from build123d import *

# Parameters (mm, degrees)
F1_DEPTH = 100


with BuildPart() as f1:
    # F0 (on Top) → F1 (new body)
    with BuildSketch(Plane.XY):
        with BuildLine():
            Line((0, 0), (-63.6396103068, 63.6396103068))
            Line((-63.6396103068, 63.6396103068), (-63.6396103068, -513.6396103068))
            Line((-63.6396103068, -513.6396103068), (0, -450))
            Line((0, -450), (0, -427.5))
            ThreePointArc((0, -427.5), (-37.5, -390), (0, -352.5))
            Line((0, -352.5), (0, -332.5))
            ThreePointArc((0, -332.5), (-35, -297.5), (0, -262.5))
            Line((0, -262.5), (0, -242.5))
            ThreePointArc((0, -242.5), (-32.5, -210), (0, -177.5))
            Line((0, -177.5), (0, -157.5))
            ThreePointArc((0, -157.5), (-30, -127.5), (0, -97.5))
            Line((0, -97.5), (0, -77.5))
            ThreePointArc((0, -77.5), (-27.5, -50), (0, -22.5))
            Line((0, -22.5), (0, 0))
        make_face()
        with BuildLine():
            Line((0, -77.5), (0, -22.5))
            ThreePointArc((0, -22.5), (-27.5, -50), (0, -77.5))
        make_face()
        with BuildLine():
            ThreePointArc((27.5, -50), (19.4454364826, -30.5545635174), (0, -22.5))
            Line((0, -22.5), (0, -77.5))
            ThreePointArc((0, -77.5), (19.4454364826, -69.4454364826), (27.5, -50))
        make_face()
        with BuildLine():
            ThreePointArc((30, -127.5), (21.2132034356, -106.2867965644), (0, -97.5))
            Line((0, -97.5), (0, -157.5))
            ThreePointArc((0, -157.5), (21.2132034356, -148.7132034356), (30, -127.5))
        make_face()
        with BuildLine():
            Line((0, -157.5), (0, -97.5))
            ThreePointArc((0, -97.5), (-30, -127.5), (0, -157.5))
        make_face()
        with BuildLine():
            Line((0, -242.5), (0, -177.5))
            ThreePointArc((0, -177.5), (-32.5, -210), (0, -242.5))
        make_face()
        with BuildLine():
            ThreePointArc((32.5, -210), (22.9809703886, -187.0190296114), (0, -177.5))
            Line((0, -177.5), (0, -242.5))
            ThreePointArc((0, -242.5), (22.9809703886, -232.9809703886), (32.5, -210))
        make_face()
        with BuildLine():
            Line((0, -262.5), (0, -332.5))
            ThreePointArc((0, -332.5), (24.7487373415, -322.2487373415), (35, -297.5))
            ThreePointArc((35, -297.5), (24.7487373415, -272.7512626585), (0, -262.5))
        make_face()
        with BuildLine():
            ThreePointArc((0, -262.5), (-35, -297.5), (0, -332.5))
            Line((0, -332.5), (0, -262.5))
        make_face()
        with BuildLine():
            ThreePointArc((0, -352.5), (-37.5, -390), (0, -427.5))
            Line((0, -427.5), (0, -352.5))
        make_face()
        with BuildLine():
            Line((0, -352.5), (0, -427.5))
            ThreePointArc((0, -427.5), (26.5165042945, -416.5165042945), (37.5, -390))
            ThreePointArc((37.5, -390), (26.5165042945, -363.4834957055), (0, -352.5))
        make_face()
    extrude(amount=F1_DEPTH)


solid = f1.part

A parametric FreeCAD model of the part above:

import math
import FreeCAD as App
import Part
import Sketcher
from FreeCAD import Vector
Q = App.Units.Quantity

doc = App.newDocument("Part")
params = doc.addObject("Spreadsheet::Sheet", "Params")
for row, (alias, value) in enumerate([
    ("sketch1_radius", "35 mm"),
    ("sketch1_radius2", "30 mm"),
    ("sketch1_radius3", "37.5 mm"),
    ("sketch1_radius4", "32.5 mm"),
    ("sketch1_radius5", "27.5 mm"),
    ("pad1_length", "100 mm"),
], start=1):
    params.set(f"A{row}", alias)
    params.set(f"B{row}", "=" + value)
    params.setAlias(f"B{row}", alias)

body = doc.addObject("PartDesign::Body", "Body")

sketch1 = body.newObject("Sketcher::SketchObject", "Sketch")
sketch1.AttachmentSupport = (doc.getObject("XY_Plane"), [""])
sketch1.MapMode = "FlatFace"
sketch1.addGeometry([
    Part.LineSegment(Vector(0, 0, 0), Vector(-64, 64, 0)),
    Part.LineSegment(Vector(-64, 64, 0), Vector(-64, -514, 0)),
    Part.LineSegment(Vector(-64, -514, 0), Vector(0, -450, 0)),
    Part.LineSegment(Vector(0, -450, 0), Vector(0, -428, 0)),
    Part.ArcOfCircle(Part.Circle(Vector(0, -390, 0), Vector(0, 0, 1), 38), math.radians(-90), math.radians(90)),
    Part.LineSegment(Vector(0, -352, 0), Vector(0, -332, 0)),
    Part.ArcOfCircle(Part.Circle(Vector(0, -298, 0), Vector(0, 0, 1), 35), math.radians(-90), math.radians(0)),
    Part.ArcOfCircle(Part.Circle(Vector(0, -298, 0), Vector(0, 0, 1), 35), math.radians(0), math.radians(90)),
    Part.LineSegment(Vector(0, -262, 0), Vector(0, -242, 0)),
    Part.ArcOfCircle(Part.Circle(Vector(0, -210, 0), Vector(0, 0, 1), 32), math.radians(-90), math.radians(0)),
    Part.ArcOfCircle(Part.Circle(Vector(0, -210, 0), Vector(0, 0, 1), 32), math.radians(0), math.radians(90)),
    Part.LineSegment(Vector(0, -178, 0), Vector(0, -158, 0)),
    Part.ArcOfCircle(Part.Circle(Vector(0, -128, 0), Vector(0, 0, 1), 30), math.radians(-90), math.radians(90)),
    Part.LineSegment(Vector(0, -98, 0), Vector(0, -78, 0)),
    Part.ArcOfCircle(Part.Circle(Vector(0, -50, 0), Vector(0, 0, 1), 28), math.radians(-90), math.radians(0)),
    Part.ArcOfCircle(Part.Circle(Vector(0, -50, 0), Vector(0, 0, 1), 28), math.radians(0), math.radians(90)),
    Part.LineSegment(Vector(0, -22, 0), Vector(0, 0, 0)),
], False)
sketch1.addConstraint([
    Sketcher.Constraint("Coincident", 0, 2, 1, 1),
    Sketcher.Constraint("Coincident", 1, 2, 2, 1),
    Sketcher.Constraint("Coincident", 2, 2, 3, 1),
    Sketcher.Constraint("Coincident", 3, 2, 4, 1),
    Sketcher.Constraint("Coincident", 4, 2, 5, 1),
    Sketcher.Constraint("Coincident", 5, 2, 6, 1),
    Sketcher.Constraint("Tangent", 6, 2, 7, 1),
    Sketcher.Constraint("Coincident", 7, 2, 8, 1),
    Sketcher.Constraint("Coincident", 8, 2, 9, 1),
    Sketcher.Constraint("Tangent", 9, 2, 10, 1),
    Sketcher.Constraint("Coincident", 10, 2, 11, 1),
    Sketcher.Constraint("Coincident", 11, 2, 12, 1),
    Sketcher.Constraint("Coincident", 12, 2, 13, 1),
    Sketcher.Constraint("Coincident", 13, 2, 14, 1),
    Sketcher.Constraint("Tangent", 14, 2, 15, 1),
    Sketcher.Constraint("Coincident", 15, 2, 16, 1),
    Sketcher.Constraint("Coincident", 16, 2, 0, 1),
    Sketcher.Constraint("Vertical", 1),
    Sketcher.Constraint("Vertical", 3),
    Sketcher.Constraint("Vertical", 5),
    Sketcher.Constraint("Vertical", 8),
    Sketcher.Constraint("Vertical", 11),
    Sketcher.Constraint("Vertical", 13),
    Sketcher.Constraint("Vertical", 16),
    Sketcher.Constraint("Coincident", 16, 2, -1, 1),
    Sketcher.Constraint("Equal", 6, 7),
    Sketcher.Constraint("Equal", 9, 10),
    Sketcher.Constraint("Equal", 14, 15),
    Sketcher.Constraint("PointOnObject", 4, 3, -2),
    Sketcher.Constraint("PointOnObject", 6, 3, -2),
    Sketcher.Constraint("PointOnObject", 9, 3, -2),
    Sketcher.Constraint("PointOnObject", 12, 3, -2),
    Sketcher.Constraint("PointOnObject", 14, 3, -2),
    Sketcher.Constraint("PointOnObject", 2, 2, -2),
    Sketcher.Constraint("PointOnObject", 4, 2, -2),
    Sketcher.Constraint("PointOnObject", 7, 2, -2),
    Sketcher.Constraint("PointOnObject", 10, 2, -2),
    Sketcher.Constraint("PointOnObject", 12, 2, -2),
    Sketcher.Constraint("Perpendicular", 0, 2),
    Sketcher.Constraint("Horizontal", 7, 3, 6, 2),
    Sketcher.Constraint("Horizontal", 10, 3, 9, 2),
    Sketcher.Constraint("Horizontal", 15, 3, 14, 2),
    Sketcher.Constraint("Equal", 5, 8),
    Sketcher.Constraint("Equal", 8, 11),
    Sketcher.Constraint("Equal", 11, 13),
    Sketcher.Constraint("Equal", 3, 16),
    Sketcher.Constraint("Equal", 0, 2),
    Sketcher.Constraint("Radius", 6, Q("35 mm")),
    Sketcher.Constraint("Radius", 12, Q("30 mm")),
    Sketcher.Constraint("Radius", 4, Q("37.5 mm")),
    Sketcher.Constraint("Radius", 9, Q("32.5 mm")),
    Sketcher.Constraint("Radius", 14, Q("27.5 mm")),
    Sketcher.Constraint("DistanceY", 5, 1, 5, 2, Q("20 mm")),
    Sketcher.Constraint("Distance", 0, Q("90 mm")),
    Sketcher.Constraint("DistanceY", 3, 1, 3, 2, Q("22.5 mm")),
])
sketch1.setExpression("Constraints[47]", "Params.sketch1_radius")
sketch1.setExpression("Constraints[48]", "Params.sketch1_radius2")
sketch1.setExpression("Constraints[49]", "Params.sketch1_radius3")
sketch1.setExpression("Constraints[50]", "Params.sketch1_radius4")
sketch1.setExpression("Constraints[51]", "Params.sketch1_radius5")
pad1 = body.newObject("PartDesign::Pad", "Pad")
pad1.Profile = sketch1
pad1.setExpression("Length", "Params.pad1_length")

doc.recompute()
